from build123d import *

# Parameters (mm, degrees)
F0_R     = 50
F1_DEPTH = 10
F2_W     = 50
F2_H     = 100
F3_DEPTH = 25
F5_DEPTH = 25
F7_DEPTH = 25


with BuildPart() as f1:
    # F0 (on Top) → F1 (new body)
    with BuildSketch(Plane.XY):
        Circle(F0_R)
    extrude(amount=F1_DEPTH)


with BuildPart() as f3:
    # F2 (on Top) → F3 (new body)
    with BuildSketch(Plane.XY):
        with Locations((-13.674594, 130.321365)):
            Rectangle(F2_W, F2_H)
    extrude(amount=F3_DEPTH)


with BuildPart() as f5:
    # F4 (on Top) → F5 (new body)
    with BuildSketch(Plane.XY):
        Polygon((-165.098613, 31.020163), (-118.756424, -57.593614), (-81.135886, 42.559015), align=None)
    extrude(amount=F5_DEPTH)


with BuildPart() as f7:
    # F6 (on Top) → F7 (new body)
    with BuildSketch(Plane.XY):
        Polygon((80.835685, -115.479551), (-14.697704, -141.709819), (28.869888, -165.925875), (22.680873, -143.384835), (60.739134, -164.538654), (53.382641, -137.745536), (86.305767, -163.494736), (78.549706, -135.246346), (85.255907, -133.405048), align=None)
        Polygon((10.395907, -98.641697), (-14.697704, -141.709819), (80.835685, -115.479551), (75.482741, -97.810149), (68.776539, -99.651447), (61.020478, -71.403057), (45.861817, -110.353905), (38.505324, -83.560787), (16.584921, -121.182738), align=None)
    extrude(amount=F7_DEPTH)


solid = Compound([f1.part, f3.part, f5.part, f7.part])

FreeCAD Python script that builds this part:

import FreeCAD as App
import Part
import Sketcher

doc = App.newDocument("Part")
body = doc.addObject("PartDesign::Body", "Body")

# Sketch on XY plane
sketch1 = doc.addObject("Sketcher::SketchObject", "Sketch")
body.addObject(sketch1)
sketch1.AttachmentSupport = (doc.XY_Plane, [""])
sketch1.MapMode = "FlatFace"
sketch1.addGeometry(Part.Circle(App.Vector(0, 0, 0), App.Vector(0, 0, 1), 50), False)
sketch1.addConstraint([
    Sketcher.Constraint("Coincident", 0, 3, -1, 1),
    Sketcher.Constraint("Diameter", 0, 100.0),
])
pad1 = doc.addObject("PartDesign::Pad", "Pad")
body.addObject(pad1)
pad1.Profile = sketch1
pad1.Length = 10
body2 = doc.addObject("PartDesign::Body", "Body001")

# Sketch on XY plane
sketch2 = doc.addObject("Sketcher::SketchObject", "Sketch001")
body2.addObject(sketch2)
sketch2.AttachmentSupport = (doc.getObject("XY_Plane001"), [""])
sketch2.MapMode = "FlatFace"
sketch2.addGeometry([
    Part.LineSegment(App.Vector(-39, 180, 0), App.Vector(-39, 80, 0)),
    Part.LineSegment(App.Vector(-39, 80, 0), App.Vector(11, 80, 0)),
    Part.LineSegment(App.Vector(11, 80, 0), App.Vector(11, 180, 0)),
    Part.LineSegment(App.Vector(11, 180, 0), App.Vector(-39, 180, 0)),
], False)
sketch2.addConstraint([
    Sketcher.Constraint("Coincident", 0, 2, 1, 1),
    Sketcher.Constraint("Coincident", 1, 2, 2, 1),
    Sketcher.Constraint("Coincident", 2, 2, 3, 1),
    Sketcher.Constraint("Coincident", 3, 2, 0, 1),
    Sketcher.Constraint("Vertical", 0),
    Sketcher.Constraint("Horizontal", 1),
    Sketcher.Constraint("Vertical", 2),
    Sketcher.Constraint("Horizontal", 3),
    Sketcher.Constraint("DistanceX", 1, 1, 1, 2, 50.0),
    Sketcher.Constraint("DistanceY", 0, 2, 0, 1, 100.0),
    Sketcher.Constraint("DistanceX", 0, 2, -1, 1, 38.674594),
    Sketcher.Constraint("DistanceY", -1, 1, 0, 2, 80.321365),
])
pad2 = doc.addObject("PartDesign::Pad", "Pad001")
body2.addObject(pad2)
pad2.Profile = sketch2
pad2.Length = 25
body3 = doc.addObject("PartDesign::Body", "Body002")

# Sketch on XY plane
sketch3 = doc.addObject("Sketcher::SketchObject", "Sketch002")
body3.addObject(sketch3)
sketch3.AttachmentSupport = (doc.getObject("XY_Plane002"), [""])
sketch3.MapMode = "FlatFace"
sketch3.addGeometry([
    Part.LineSegment(App.Vector(-165, 31, 0), App.Vector(-119, -58, 0)),
    Part.LineSegment(App.Vector(-119, -58, 0), App.Vector(-81, 43, 0)),
    Part.LineSegment(App.Vector(-81, 43, 0), App.Vector(-165, 31, 0)),
], False)
sketch3.addConstraint([
    Sketcher.Constraint("Coincident", 0, 2, 1, 1),
    Sketcher.Constraint("Coincident", 1, 2, 2, 1),
    Sketcher.Constraint("Coincident", 2, 2, 0, 1),
    Sketcher.Constraint("Distance", 0, 100.0),
    Sketcher.Constraint("Distance", 2, 84.7519),
    Sketcher.Constraint("DistanceY", 0, 2, 1, 2, 100.152629),
    Sketcher.Constraint("DistanceX", 2, 2, 0, 2, 46.342189),
    Sketcher.Constraint("DistanceX", 0, 2, -1, 1, 118.756424),
    Sketcher.Constraint("DistanceY", 0, 2, -1, 1, 57.593614),
])
pad3 = doc.addObject("PartDesign::Pad", "Pad002")
body3.addObject(pad3)
pad3.Profile = sketch3
pad3.Length = 25
body4 = doc.addObject("PartDesign::Body", "Body003")

# Sketch on XY plane
sketch4 = doc.addObject("Sketcher::SketchObject", "Sketch003")
body4.addObject(sketch4)
sketch4.AttachmentSupport = (doc.getObject("XY_Plane003"), [""])
sketch4.MapMode = "FlatFace"
sketch4.addGeometry([
    Part.LineSegment(App.Vector(-15, -142, 0), App.Vector(29, -166, 0)),  # 0
    Part.LineSegment(App.Vector(29, -166, 0), App.Vector(23, -143, 0)),  # 1
    Part.LineSegment(App.Vector(23, -143, 0), App.Vector(61, -165, 0)),  # 2
    Part.LineSegment(App.Vector(61, -165, 0), App.Vector(53, -138, 0)),  # 3
    Part.LineSegment(App.Vector(53, -138, 0), App.Vector(86, -163, 0)),  # 4
    Part.LineSegment(App.Vector(86, -163, 0), App.Vector(79, -135, 0)),  # 5
    Part.LineSegment(App.Vector(79, -135, 0), App.Vector(85, -133, 0)),  # 6
    Part.LineSegment(App.Vector(85, -133, 0), App.Vector(81, -115, 0)),  # 7
    Part.LineSegment(App.Vector(81, -115, 0), App.Vector(75, -98, 0)),  # 8
    Part.LineSegment(App.Vector(75, -98, 0), App.Vector(69, -100, 0)),  # 9
    Part.LineSegment(App.Vector(69, -100, 0), App.Vector(61, -71, 0)),  # 10
    Part.LineSegment(App.Vector(61, -71, 0), App.Vector(46, -110, 0)),  # 11
    Part.LineSegment(App.Vector(46, -110, 0), App.Vector(39, -84, 0)),  # 12
    Part.LineSegment(App.Vector(39, -84, 0), App.Vector(17, -121, 0)),  # 13
    Part.LineSegment(App.Vector(17, -121, 0), App.Vector(10, -99, 0)),  # 14
    Part.LineSegment(App.Vector(10, -99, 0), App.Vector(-15, -142, 0)),  # 15
], False)
sketch4.addConstraint([
    Sketcher.Constraint("Coincident", 0, 2, 1, 1),
    Sketcher.Constraint("Coincident", 1, 2, 2, 1),
    Sketcher.Constraint("Coincident", 2, 2, 3, 1),
    Sketcher.Constraint("Coincident", 3, 2, 4, 1),
    Sketcher.Constraint("Coincident", 4, 2, 5, 1),
    Sketcher.Constraint("Coincident", 5, 2, 6, 1),
    Sketcher.Constraint("Coincident", 6, 2, 7, 1),
    Sketcher.Constraint("Coincident", 7, 2, 8, 1),
    Sketcher.Constraint("Coincident", 8, 2, 9, 1),
    Sketcher.Constraint("Coincident", 9, 2, 10, 1),
    Sketcher.Constraint("Coincident", 10, 2, 11, 1),
    Sketcher.Constraint("Coincident", 11, 2, 12, 1),
    Sketcher.Constraint("Coincident", 12, 2, 13, 1),
    Sketcher.Constraint("Coincident", 13, 2, 14, 1),
    Sketcher.Constraint("Coincident", 14, 2, 15, 1),
    Sketcher.Constraint("Coincident", 15, 2, 0, 1),
    Sketcher.Constraint("Parallel", 0, 2),
    Sketcher.Constraint("Parallel", 1, 3),
    Sketcher.Constraint("Parallel", 3, 5),
    Sketcher.Constraint("Perpendicular", 5, 6),
    Sketcher.Constraint("Parallel", 6, 9),
    Sketcher.Constraint("Perpendicular", 9, 10),
    Sketcher.Constraint("Parallel", 10, 12),
    Sketcher.Constraint("Parallel", 12, 14),
    Sketcher.Constraint("Parallel", 13, 15),
    Sketcher.Constraint("Equal", 7, 8),
    Sketcher.Constraint("Equal", 6, 9),
    Sketcher.Constraint("Equal", 5, 10),
    Sketcher.Constraint("Equal", 4, 11),
    Sketcher.Constraint("Equal", 3, 12),
    Sketcher.Constraint("Equal", 2, 13),
    Sketcher.Constraint("Equal", 1, 14),
    Sketcher.Constraint("Equal", 0, 15),
    Sketcher.Constraint("DistanceY", 1, 2, 3, 2, 5.639299),
    Sketcher.Constraint("DistanceY", 4, 2, 3, 2, 25.7492),
    Sketcher.Constraint("DistanceX", 5, 2, 6, 2, 6.706201),
    Sketcher.Constraint("DistanceY", 6, 2, 8, 2, 35.594899),
    Sketcher.Constraint("DistanceX", 3, 2, 8, 2, 22.1001),
    Sketcher.Constraint("DistanceY", 9, 2, 8, 2, 1.841298),
    Sketcher.Constraint("Distance", 1, 23.375252),
    Sketcher.Constraint("Distance", 2, 43.542109),
    Sketcher.Constraint("DistanceX", -1, 1, 3, 2, 53.382641),
    Sketcher.Constraint("DistanceY", 6, 2, -1, 1, 133.405048),
    Sketcher.Constraint("DistanceY", 7, 2, -1, 1, 115.479551),
    Sketcher.Constraint("DistanceX", -1, 1, 13, 2, 16.584921),
    Sketcher.Constraint("DistanceY", 13, 2, -1, 1, 121.182738),
    Sketcher.Constraint("DistanceY", 15, 2, -1, 1, 141.709819),
    Sketcher.Constraint("DistanceY", 0, 2, 2, 2, 1.387221),
])
pad4 = doc.addObject("PartDesign::Pad", "Pad003")
body4.addObject(pad4)
pad4.Profile = sketch4
pad4.Length = 25

doc.recompute()
